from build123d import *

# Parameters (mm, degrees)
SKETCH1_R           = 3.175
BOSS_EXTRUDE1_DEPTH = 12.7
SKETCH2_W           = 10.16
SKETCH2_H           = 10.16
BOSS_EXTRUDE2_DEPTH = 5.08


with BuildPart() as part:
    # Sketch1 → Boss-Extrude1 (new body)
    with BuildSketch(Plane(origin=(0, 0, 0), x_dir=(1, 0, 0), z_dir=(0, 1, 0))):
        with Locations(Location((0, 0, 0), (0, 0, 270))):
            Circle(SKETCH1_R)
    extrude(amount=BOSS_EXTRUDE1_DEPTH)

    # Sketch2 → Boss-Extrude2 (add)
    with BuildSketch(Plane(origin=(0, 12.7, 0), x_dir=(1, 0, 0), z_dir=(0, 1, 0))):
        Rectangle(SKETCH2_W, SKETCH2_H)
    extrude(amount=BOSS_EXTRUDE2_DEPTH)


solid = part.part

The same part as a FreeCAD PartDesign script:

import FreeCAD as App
import Part
import Sketcher

V = App.Vector
Q = App.Units.Quantity

doc = App.newDocument("Part")
body = doc.addObject("PartDesign::Body", "Body")

sketch1 = body.newObject("Sketcher::SketchObject", "Sketch")
sketch1.AttachmentSupport = (doc.getObject("XZ_Plane"), [""])
sketch1.MapMode = "FlatFace"
sketch1.addGeometry(Part.Circle(V(0, 0, 0), V(0, 0, 1), 3.2), False)
sketch1.addConstraint([
    Sketcher.Constraint("Coincident", 0, 3, -1, 1),
    Sketcher.Constraint("Diameter", 0, Q("0.25 in")),
])
pad1 = body.newObject("PartDesign::Pad", "Pad")
pad1.Profile = sketch1
pad1.Length = Q("0.5 in")
pad1.Reversed = True

sketch2 = body.newObject("Sketcher::SketchObject", "Sketch001")
sketch2.AttachmentSupport = (doc.getObject("XZ_Plane"), [""])
sketch2.MapMode = "FlatFace"
sketch2.AttachmentOffset = App.Placement(V(0, 0, -0.5 * 25.4), App.Rotation())
sketch2.addGeometry([
    Part.LineSegment(V(-5, -5, 0), V(-5, 5, 0)),
    Part.LineSegment(V(-5, 5, 0), V(5, 5, 0)),
    Part.LineSegment(V(5, 5, 0), V(5, -5, 0)),
    Part.LineSegment(V(5, -5, 0), V(-5, -5, 0)),
], False)
sketch2.addConstraint([
    Sketcher.Constraint("Coincident", 0, 2, 1, 1),
    Sketcher.Constraint("Coincident", 1, 2, 2, 1),
    Sketcher.Constraint("Coincident", 2, 2, 3, 1),
    Sketcher.Constraint("Coincident", 3, 2, 0, 1),
    Sketcher.Constraint("Vertical", 0),
    Sketcher.Constraint("Horizontal", 1),
    Sketcher.Constraint("Vertical", 2),
    Sketcher.Constraint("Horizontal", 3),
    Sketcher.Constraint("Symmetric", 0, 2, 2, 2, -1, 1),
    Sketcher.Constraint("Equal", 3, 0),
    Sketcher.Constraint("DistanceX", 1, 1, 1, 2, Q("0.4 in")),
])
pad2 = body.newObject("PartDesign::Pad", "Pad001")
pad2.Profile = sketch2
pad2.Length = Q("0.2 in")
pad2.Reversed = True

doc.recompute()
